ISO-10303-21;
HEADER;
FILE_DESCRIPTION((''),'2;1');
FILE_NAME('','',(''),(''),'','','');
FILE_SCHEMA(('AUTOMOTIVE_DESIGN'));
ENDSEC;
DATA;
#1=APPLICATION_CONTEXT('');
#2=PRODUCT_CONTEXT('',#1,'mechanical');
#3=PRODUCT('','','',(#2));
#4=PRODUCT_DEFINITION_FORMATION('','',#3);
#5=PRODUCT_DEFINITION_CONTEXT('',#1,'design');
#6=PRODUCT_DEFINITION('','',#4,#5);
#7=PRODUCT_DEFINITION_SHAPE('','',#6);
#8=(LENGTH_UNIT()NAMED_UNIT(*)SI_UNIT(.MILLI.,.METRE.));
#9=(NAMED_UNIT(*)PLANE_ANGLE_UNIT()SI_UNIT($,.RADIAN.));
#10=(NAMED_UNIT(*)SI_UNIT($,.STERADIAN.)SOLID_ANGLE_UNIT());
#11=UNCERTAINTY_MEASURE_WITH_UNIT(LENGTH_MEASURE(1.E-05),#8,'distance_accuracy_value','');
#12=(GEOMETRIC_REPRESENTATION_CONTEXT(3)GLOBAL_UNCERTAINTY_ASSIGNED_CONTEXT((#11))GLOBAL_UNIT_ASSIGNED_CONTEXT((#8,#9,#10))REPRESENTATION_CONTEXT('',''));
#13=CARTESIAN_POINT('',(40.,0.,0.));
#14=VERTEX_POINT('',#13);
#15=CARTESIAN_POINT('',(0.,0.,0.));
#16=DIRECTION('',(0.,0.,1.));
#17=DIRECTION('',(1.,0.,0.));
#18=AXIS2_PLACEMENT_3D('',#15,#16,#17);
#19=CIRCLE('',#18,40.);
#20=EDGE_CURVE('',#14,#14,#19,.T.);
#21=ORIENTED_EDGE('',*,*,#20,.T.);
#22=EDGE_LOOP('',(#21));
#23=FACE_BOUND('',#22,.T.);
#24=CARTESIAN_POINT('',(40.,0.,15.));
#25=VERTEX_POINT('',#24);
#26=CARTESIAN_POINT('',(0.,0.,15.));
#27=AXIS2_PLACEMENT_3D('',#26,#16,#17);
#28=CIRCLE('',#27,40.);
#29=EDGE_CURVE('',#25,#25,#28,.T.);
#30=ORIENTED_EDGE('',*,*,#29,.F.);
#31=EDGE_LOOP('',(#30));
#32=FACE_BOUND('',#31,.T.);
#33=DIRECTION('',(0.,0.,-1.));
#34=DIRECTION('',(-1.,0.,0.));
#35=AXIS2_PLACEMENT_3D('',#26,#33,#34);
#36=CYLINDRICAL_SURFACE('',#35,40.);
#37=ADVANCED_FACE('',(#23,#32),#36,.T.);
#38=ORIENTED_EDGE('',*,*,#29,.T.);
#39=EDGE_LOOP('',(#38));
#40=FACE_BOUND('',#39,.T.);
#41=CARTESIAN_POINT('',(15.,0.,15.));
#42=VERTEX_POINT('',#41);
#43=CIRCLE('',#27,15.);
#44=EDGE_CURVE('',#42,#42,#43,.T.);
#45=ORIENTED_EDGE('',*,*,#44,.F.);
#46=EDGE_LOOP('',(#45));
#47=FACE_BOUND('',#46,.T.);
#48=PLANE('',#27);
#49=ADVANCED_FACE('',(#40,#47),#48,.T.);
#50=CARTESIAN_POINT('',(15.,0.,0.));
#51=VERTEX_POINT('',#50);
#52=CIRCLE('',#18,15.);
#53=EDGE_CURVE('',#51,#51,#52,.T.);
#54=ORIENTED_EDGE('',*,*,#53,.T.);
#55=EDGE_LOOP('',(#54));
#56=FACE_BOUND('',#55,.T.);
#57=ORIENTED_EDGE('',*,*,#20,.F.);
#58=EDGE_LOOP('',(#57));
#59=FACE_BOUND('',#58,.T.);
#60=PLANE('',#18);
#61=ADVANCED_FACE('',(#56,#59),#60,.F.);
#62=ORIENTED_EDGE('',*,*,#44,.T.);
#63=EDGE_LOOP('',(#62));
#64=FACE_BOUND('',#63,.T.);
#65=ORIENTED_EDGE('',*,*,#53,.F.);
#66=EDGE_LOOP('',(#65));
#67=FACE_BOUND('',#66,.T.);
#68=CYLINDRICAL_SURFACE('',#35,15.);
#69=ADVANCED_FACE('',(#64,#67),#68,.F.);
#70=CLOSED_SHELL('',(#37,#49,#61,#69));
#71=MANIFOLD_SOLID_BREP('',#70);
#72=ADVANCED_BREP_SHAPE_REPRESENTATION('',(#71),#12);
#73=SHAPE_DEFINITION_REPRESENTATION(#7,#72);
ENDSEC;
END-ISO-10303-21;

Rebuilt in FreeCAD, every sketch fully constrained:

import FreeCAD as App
import Part
import Sketcher

V = App.Vector

doc = App.newDocument("Part")
body = doc.addObject("PartDesign::Body", "Body")

sketch1 = doc.addObject("Sketcher::SketchObject", "Sketch")
body.addObject(sketch1)
sketch1.AttachmentSupport = (doc.XY_Plane, [""])
sketch1.MapMode = "FlatFace"
sketch1.addGeometry([
    Part.Circle(V(0, 0, 0), V(0, 0, 1), 40),
    Part.Circle(V(0, 0, 0), V(0, 0, 1), 15),
], False)
sketch1.addConstraint([
    Sketcher.Constraint("Coincident", 0, 3, -1, 1),
    Sketcher.Constraint("Coincident", 1, 3, -1, 1),
    Sketcher.Constraint("Diameter", 0, 80.0),
    Sketcher.Constraint("Diameter", 1, 30.0),
])
pad1 = doc.addObject("PartDesign::Pad", "Pad")
body.addObject(pad1)
pad1.Profile = sketch1
pad1.Length = 15

doc.recompute()
